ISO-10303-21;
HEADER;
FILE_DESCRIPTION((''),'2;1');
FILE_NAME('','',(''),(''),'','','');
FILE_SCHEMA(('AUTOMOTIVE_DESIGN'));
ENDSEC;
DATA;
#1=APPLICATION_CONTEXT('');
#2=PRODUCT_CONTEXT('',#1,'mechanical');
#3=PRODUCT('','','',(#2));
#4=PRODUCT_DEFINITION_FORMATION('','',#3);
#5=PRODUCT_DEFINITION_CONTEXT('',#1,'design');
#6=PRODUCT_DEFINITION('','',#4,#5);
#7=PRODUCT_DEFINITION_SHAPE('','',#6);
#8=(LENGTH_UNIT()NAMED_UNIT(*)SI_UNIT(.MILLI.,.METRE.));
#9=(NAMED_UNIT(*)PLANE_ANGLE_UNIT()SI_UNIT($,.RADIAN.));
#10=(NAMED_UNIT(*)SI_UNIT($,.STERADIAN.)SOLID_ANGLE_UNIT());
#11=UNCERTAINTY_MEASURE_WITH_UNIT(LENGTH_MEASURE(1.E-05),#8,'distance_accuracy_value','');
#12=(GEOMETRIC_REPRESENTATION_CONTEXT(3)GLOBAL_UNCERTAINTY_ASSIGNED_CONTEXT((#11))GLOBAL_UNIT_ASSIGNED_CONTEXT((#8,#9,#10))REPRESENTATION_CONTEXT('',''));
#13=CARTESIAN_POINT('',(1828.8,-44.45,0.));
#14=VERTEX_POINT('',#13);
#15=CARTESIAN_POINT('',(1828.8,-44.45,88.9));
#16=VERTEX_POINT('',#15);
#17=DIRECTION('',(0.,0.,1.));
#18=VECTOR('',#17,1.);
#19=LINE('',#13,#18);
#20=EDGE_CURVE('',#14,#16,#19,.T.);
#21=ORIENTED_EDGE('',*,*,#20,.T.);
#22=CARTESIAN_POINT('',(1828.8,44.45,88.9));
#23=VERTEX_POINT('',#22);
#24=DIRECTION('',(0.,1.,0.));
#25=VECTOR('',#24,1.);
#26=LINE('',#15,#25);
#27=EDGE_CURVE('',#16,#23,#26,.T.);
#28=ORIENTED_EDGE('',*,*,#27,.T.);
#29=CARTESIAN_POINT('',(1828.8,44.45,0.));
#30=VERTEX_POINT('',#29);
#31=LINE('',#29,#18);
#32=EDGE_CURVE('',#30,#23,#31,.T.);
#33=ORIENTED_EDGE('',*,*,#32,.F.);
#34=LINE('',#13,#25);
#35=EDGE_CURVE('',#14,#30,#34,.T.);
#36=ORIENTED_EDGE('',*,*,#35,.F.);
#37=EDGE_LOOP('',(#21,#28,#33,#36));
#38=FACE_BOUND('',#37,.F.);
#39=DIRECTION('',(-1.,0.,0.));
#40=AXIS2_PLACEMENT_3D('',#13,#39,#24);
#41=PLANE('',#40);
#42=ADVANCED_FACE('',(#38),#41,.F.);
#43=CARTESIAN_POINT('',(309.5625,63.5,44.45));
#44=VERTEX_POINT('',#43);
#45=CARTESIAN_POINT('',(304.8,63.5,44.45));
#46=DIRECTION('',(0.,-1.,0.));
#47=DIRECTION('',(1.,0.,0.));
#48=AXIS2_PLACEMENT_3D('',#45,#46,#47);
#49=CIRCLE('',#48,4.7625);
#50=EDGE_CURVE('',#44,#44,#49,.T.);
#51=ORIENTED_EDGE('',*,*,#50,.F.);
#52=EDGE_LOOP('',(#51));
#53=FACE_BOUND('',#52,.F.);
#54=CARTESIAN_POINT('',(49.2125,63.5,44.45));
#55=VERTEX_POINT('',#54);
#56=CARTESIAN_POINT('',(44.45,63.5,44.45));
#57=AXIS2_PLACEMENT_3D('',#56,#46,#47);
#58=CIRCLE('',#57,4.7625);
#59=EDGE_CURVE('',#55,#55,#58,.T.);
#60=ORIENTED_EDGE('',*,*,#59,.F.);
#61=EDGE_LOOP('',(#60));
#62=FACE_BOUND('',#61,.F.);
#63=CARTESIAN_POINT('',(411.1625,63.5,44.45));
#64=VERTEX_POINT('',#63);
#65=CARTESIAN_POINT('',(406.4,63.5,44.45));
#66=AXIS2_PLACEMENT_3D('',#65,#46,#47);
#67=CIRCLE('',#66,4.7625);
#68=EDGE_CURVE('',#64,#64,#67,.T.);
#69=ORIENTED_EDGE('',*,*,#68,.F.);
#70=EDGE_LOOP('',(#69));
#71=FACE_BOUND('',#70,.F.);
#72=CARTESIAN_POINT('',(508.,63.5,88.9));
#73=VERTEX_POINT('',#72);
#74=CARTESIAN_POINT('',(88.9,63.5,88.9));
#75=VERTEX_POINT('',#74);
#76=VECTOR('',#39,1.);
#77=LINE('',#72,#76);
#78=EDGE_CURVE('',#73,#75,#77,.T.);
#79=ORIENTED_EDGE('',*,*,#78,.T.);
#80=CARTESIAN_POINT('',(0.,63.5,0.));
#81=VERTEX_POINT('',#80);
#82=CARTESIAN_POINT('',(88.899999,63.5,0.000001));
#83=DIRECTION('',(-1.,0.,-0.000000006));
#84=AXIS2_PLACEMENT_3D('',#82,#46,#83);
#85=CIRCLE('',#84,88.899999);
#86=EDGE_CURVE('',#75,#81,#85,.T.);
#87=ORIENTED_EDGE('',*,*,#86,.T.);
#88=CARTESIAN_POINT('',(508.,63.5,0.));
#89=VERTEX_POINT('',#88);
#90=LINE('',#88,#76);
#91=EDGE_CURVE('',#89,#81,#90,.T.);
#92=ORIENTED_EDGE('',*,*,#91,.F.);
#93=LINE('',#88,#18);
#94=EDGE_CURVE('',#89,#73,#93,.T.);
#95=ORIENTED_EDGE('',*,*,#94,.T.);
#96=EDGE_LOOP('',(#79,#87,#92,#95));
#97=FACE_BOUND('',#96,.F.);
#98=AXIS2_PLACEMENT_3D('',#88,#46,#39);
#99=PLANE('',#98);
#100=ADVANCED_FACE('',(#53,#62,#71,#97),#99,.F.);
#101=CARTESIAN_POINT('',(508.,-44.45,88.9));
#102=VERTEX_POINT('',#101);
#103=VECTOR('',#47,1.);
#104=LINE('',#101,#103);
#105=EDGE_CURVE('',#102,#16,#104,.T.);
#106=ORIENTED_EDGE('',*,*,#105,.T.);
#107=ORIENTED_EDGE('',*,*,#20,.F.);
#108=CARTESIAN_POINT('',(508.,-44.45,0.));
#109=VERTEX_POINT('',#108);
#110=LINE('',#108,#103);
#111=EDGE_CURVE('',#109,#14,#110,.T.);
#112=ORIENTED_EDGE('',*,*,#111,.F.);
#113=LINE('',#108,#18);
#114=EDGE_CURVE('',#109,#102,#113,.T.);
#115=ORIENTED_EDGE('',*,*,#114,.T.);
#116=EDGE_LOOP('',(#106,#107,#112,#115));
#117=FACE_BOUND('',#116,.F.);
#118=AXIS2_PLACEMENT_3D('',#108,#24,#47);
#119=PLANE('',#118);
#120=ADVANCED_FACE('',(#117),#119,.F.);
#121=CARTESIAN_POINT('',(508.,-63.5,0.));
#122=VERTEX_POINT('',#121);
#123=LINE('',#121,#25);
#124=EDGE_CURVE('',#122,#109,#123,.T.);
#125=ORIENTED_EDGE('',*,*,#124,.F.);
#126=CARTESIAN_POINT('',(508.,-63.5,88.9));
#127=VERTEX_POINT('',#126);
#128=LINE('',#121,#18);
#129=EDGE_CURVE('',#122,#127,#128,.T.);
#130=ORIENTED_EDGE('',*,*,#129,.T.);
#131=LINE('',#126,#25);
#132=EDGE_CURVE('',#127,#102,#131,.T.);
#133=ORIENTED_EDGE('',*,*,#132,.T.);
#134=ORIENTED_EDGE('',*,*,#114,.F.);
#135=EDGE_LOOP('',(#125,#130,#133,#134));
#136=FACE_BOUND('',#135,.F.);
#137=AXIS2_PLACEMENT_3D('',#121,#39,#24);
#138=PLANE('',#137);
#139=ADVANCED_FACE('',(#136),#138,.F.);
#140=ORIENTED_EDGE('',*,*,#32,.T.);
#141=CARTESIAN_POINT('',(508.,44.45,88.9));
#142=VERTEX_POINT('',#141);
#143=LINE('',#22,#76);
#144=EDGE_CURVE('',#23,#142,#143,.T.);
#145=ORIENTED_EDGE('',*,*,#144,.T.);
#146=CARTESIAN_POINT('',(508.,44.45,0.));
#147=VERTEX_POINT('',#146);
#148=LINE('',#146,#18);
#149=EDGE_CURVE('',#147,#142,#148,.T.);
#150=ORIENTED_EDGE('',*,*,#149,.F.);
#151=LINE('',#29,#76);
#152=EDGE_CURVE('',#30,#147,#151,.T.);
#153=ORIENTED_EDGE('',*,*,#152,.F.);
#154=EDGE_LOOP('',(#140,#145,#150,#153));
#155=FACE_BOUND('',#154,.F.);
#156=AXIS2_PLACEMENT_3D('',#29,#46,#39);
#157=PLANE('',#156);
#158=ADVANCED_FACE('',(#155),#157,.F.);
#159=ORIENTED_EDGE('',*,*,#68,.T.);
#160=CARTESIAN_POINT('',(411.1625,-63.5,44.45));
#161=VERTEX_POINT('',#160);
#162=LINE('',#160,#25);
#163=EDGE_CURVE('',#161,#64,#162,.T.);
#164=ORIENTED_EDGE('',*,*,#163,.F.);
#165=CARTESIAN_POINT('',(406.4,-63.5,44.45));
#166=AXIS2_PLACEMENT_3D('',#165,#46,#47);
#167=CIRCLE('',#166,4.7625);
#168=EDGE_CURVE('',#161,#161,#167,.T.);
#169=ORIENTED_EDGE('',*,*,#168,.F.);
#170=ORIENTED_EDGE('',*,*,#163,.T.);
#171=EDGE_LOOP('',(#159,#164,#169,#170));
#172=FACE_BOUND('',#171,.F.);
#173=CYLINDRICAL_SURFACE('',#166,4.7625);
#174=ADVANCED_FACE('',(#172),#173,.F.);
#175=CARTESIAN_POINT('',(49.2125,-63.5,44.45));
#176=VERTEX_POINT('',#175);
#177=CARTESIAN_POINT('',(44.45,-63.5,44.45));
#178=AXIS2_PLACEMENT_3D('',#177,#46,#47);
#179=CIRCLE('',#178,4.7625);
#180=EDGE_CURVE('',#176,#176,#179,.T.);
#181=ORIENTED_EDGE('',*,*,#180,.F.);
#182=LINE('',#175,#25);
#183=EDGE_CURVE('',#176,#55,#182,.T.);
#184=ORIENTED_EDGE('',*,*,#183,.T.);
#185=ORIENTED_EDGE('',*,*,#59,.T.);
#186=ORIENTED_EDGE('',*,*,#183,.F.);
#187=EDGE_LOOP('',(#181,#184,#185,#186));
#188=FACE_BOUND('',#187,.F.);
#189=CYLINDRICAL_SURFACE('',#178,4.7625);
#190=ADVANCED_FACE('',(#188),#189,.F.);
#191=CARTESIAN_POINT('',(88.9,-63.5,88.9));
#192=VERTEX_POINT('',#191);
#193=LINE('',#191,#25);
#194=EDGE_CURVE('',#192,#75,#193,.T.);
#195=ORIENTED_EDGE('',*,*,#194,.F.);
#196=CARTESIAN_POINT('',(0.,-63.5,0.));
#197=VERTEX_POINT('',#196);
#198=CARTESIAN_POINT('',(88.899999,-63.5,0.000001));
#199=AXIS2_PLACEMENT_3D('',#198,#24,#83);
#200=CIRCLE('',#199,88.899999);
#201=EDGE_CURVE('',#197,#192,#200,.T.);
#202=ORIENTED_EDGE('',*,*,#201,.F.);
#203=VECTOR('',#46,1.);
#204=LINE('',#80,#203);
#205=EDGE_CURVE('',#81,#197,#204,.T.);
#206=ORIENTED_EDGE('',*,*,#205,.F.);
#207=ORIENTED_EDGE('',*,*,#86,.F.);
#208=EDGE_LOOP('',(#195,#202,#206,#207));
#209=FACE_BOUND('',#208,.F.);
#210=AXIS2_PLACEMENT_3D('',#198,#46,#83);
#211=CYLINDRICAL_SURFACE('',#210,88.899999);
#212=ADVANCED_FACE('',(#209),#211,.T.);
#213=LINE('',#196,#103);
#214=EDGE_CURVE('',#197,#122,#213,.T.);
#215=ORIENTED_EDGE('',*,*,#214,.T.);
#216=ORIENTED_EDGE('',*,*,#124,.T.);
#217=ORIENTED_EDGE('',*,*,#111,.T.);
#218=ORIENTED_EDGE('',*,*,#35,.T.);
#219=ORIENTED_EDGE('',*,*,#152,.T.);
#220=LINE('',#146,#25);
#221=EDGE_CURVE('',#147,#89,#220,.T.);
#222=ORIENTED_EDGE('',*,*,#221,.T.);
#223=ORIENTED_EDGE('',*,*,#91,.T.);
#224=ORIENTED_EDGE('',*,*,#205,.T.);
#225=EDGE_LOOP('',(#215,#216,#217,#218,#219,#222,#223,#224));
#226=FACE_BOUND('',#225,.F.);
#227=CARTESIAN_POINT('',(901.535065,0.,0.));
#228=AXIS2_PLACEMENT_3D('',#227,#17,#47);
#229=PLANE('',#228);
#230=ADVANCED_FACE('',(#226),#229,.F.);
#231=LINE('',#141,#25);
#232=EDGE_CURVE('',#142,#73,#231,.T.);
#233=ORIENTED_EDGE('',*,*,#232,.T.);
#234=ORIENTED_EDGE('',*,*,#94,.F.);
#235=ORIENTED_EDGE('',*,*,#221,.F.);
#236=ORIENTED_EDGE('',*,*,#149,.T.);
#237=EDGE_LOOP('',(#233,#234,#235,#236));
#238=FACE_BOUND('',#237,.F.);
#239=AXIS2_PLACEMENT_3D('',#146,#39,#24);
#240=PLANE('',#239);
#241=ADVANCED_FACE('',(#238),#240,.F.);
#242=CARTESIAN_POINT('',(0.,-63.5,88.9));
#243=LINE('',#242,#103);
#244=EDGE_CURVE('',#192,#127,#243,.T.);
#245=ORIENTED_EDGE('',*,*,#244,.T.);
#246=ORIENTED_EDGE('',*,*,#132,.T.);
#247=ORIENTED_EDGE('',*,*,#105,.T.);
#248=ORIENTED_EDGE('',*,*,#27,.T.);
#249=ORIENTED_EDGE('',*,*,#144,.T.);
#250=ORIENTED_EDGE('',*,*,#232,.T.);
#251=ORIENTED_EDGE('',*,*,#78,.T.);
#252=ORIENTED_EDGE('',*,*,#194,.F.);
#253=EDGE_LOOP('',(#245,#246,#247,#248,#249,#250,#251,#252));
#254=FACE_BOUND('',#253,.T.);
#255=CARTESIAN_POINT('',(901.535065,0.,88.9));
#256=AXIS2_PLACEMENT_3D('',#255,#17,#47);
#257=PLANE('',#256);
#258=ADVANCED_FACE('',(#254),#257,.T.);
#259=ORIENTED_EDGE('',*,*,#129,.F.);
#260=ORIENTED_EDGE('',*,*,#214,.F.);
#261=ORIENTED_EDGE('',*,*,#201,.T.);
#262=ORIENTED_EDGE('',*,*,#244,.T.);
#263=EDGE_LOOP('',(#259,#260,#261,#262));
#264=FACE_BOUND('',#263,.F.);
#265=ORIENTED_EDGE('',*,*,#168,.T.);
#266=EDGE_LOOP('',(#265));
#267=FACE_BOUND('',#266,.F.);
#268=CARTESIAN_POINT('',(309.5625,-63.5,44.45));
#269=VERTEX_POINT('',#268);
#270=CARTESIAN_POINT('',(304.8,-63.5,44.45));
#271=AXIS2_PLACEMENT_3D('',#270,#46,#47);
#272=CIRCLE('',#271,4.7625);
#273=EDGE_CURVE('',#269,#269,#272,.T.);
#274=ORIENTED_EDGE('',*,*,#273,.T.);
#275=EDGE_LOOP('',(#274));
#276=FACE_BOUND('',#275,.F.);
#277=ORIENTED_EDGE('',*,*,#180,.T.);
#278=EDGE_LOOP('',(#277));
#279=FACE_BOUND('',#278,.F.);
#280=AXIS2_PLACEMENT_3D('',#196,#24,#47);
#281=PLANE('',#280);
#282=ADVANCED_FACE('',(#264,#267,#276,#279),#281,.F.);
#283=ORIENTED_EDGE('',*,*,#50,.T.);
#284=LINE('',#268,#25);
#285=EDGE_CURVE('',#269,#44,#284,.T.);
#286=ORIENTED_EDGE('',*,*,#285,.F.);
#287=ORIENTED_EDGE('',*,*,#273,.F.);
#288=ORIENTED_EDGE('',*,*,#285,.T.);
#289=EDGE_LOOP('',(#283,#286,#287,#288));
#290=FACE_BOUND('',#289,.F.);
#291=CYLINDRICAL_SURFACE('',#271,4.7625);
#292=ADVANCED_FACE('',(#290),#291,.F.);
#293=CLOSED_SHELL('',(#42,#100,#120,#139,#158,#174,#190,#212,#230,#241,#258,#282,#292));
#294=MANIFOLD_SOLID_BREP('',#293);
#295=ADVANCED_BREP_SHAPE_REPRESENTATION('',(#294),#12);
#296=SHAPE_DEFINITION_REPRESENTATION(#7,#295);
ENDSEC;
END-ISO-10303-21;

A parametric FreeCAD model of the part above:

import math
import FreeCAD as App
import Part
import Sketcher
Q = App.Units.Quantity

doc = App.newDocument("Part")
body = doc.addObject("PartDesign::Body", "Body")

# Sketch on XY plane
sketch1 = body.newObject("Sketcher::SketchObject", "Sketch")
sketch1.AttachmentSupport = (doc.getObject("XY_Plane"), [""])
sketch1.MapMode = "FlatFace"
sketch1.addGeometry(Part.LineSegment(App.Vector(508, -63.5, 0), App.Vector(508, -44.45, 0)), False)
sketch1.addGeometry(Part.LineSegment(App.Vector(508, -44.45, 0), App.Vector(1828.8, -44.45, 0)), False)
sketch1.addGeometry(Part.LineSegment(App.Vector(1828.8, -44.45, 0), App.Vector(1828.8, 44.45, 0)), False)
sketch1.addGeometry(Part.LineSegment(App.Vector(1828.8, 44.45, 0), App.Vector(508, 44.45, 0)), False)
sketch1.addGeometry(Part.LineSegment(App.Vector(508, 44.45, 0), App.Vector(508, 63.5, 0)), False)
sketch1.addGeometry(Part.LineSegment(App.Vector(508, 63.5, 0), App.Vector(0, 63.5, 0)), False)
sketch1.addGeometry(Part.LineSegment(App.Vector(0, 63.5, 0), App.Vector(0, -63.5, 0)), False)
sketch1.addGeometry(Part.LineSegment(App.Vector(0, -63.5, 0), App.Vector(508, -63.5, 0)), False)
sketch1.addConstraint(Sketcher.Constraint("Coincident", 0, 2, 1, 1))
sketch1.addConstraint(Sketcher.Constraint("Coincident", 1, 2, 2, 1))
sketch1.addConstraint(Sketcher.Constraint("Coincident", 2, 2, 3, 1))
sketch1.addConstraint(Sketcher.Constraint("Coincident", 3, 2, 4, 1))
sketch1.addConstraint(Sketcher.Constraint("Coincident", 4, 2, 5, 1))
sketch1.addConstraint(Sketcher.Constraint("Coincident", 5, 2, 6, 1))
sketch1.addConstraint(Sketcher.Constraint("Coincident", 6, 2, 7, 1))
sketch1.addConstraint(Sketcher.Constraint("Coincident", 7, 2, 0, 1))
sketch1.addConstraint(Sketcher.Constraint("Vertical", 0))
sketch1.addConstraint(Sketcher.Constraint("Horizontal", 1))
sketch1.addConstraint(Sketcher.Constraint("Vertical", 2))
sketch1.addConstraint(Sketcher.Constraint("Horizontal", 3))
sketch1.addConstraint(Sketcher.Constraint("Vertical", 4))
sketch1.addConstraint(Sketcher.Constraint("Horizontal", 5))
sketch1.addConstraint(Sketcher.Constraint("Vertical", 6))
sketch1.addConstraint(Sketcher.Constraint("Horizontal", 7))
sketch1.addConstraint(Sketcher.Constraint("Symmetric", 5, 2, 6, 2, -1, 1))
sketch1.addConstraint(Sketcher.Constraint("Symmetric", 0, 2, 3, 2, -1))
sketch1.addConstraint(Sketcher.Constraint("DistanceX", 1, 1, 1, 2, Q("52 in")))
sketch1.addConstraint(Sketcher.Constraint("DistanceX", 5, 2, 5, 1, Q("20 in")))
sketch1.addConstraint(Sketcher.Constraint("DistanceY", 6, 2, 6, 1, Q("5 in")))
sketch1.addConstraint(Sketcher.Constraint("DistanceY", 2, 1, 2, 2, Q("3.5 in")))
pad1 = body.newObject("PartDesign::Pad", "Pad")
pad1.Profile = sketch1
pad1.Length = Q("3.5 in")

# Sketch on XZ plane
sketch2 = body.newObject("Sketcher::SketchObject", "Sketch001")
sketch2.AttachmentSupport = (doc.getObject("XZ_Plane"), [""])
sketch2.MapMode = "FlatFace"
sketch2.AttachmentOffset = App.Placement(App.Vector(0, 0, 2.5 * 25.4), App.Rotation())
sketch2.addGeometry(Part.Circle(App.Vector(44.45, 44.45, 0), App.Vector(0, 0, 1), 4.7625), False)
sketch2.addGeometry(Part.Circle(App.Vector(304.8, 44.45, 0), App.Vector(0, 0, 1), 4.7625), False)
sketch2.addGeometry(Part.Circle(App.Vector(406.4, 44.45, 0), App.Vector(0, 0, 1), 4.7625), False)
sketch2.addConstraint(Sketcher.Constraint("Equal", 0, 1))
sketch2.addConstraint(Sketcher.Constraint("Equal", 1, 2))
sketch2.addConstraint(Sketcher.Constraint("Horizontal", 0, 3, 1, 3))
sketch2.addConstraint(Sketcher.Constraint("Horizontal", 1, 3, 2, 3))
sketch2.addConstraint(Sketcher.Constraint("Diameter", 0, Q("0.375 in")))
sketch2.addConstraint(Sketcher.Constraint("DistanceX", -1, 1, 1, 3, Q("12 in")))
sketch2.addConstraint(Sketcher.Constraint("DistanceX", -1, 1, 2, 3, Q("16 in")))
sketch2.addConstraint(Sketcher.Constraint("DistanceX", -1, 1, 0, 3, Q("1.75 in")))
sketch2.addConstraint(Sketcher.Constraint("DistanceY", -1, 1, 0, 3, Q("1.75 in")))
pocket1 = body.newObject("PartDesign::Pocket", "Pocket")
pocket1.Profile = sketch2
pocket1.Type = "ThroughAll"

# Sketch on XZ plane
sketch3 = body.newObject("Sketcher::SketchObject", "Sketch002")
sketch3.AttachmentSupport = (doc.getObject("XZ_Plane"), [""])
sketch3.MapMode = "FlatFace"
sketch3.AttachmentOffset = App.Placement(App.Vector(0, 0, 2.5 * 25.4), App.Rotation())
sketch3.addGeometry(Part.ArcOfCircle(Part.Circle(App.Vector(88.899999, 0.000001, 0), App.Vector(0, 0, 1), 88.899999), math.radians(90), math.radians(180)), False)
sketch3.addGeometry(Part.LineSegment(App.Vector(88.9, 88.9, 0), App.Vector(0, 88.9, 0)), False)
sketch3.addGeometry(Part.LineSegment(App.Vector(0, 88.9, 0), App.Vector(0, 0, 0)), False)
sketch3.addConstraint(Sketcher.Constraint("Tangent", 0, 1, 1, 1))
sketch3.addConstraint(Sketcher.Constraint("Coincident", 1, 2, 2, 1))
sketch3.addConstraint(Sketcher.Constraint("Tangent", 2, 2, 0, 2))
sketch3.addConstraint(Sketcher.Constraint("Horizontal", 1))
sketch3.addConstraint(Sketcher.Constraint("Vertical", 2))
sketch3.addConstraint(Sketcher.Constraint("Coincident", 2, 2, -1, 1))
sketch3.addConstraint(Sketcher.Constraint("Radius", 0, Q("3.5 in")))
pocket2 = body.newObject("PartDesign::Pocket", "Pocket001")
pocket2.Profile = sketch3
pocket2.Type = "ThroughAll"

doc.recompute()
